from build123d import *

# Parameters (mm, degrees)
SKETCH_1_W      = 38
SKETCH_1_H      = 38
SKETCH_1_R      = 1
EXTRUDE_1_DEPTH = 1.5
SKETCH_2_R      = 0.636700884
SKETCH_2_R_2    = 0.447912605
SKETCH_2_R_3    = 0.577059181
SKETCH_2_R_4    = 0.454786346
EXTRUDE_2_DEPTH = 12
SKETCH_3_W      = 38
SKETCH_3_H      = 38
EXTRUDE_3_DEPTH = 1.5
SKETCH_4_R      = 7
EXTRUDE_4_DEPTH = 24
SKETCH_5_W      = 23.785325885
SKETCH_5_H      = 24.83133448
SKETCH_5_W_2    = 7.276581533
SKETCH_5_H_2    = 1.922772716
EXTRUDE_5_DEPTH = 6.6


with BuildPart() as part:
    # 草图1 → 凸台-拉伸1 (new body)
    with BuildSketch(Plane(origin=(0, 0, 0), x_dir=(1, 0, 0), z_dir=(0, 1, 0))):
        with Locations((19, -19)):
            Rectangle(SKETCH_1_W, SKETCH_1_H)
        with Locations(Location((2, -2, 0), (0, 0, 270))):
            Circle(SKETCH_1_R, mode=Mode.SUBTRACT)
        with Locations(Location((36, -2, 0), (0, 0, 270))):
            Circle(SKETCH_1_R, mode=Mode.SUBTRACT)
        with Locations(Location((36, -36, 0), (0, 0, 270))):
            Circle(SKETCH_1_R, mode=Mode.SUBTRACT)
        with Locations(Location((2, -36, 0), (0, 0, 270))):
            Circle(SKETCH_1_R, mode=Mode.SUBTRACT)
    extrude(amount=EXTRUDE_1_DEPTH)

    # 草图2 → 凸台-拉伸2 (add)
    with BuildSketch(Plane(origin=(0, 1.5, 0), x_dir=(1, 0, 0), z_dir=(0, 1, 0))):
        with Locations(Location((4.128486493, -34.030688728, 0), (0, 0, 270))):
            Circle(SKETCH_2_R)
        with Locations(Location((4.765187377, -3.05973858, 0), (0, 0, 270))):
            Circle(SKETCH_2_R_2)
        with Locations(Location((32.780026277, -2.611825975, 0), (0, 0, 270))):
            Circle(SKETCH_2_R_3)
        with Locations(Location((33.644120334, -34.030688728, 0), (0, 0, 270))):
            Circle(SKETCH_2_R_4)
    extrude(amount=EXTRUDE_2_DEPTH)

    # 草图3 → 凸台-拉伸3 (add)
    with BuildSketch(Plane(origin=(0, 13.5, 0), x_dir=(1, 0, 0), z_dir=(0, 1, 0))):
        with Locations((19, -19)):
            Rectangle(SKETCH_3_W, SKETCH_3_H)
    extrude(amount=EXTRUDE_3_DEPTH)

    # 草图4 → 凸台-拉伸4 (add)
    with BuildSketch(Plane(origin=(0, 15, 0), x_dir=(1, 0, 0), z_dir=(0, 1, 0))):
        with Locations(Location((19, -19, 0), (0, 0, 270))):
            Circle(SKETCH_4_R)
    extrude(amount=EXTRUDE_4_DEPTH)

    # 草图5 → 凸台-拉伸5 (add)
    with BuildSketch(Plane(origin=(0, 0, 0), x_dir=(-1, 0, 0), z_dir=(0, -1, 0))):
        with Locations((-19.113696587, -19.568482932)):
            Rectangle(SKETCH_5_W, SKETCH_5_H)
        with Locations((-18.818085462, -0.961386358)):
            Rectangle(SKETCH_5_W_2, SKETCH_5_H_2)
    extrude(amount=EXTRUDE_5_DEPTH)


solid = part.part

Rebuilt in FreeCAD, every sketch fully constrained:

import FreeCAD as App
import Part
import Sketcher


def add_polygon(sketch, points):
    """Adds a closed chain of lines whose ends are joined by coincident constraints."""
    first, n = sketch.GeometryCount, len(points)
    for a, b in zip(points, points[1:] + points[:1]):
        sketch.addGeometry(Part.LineSegment(App.Vector(*a, 0), App.Vector(*b, 0)), False)
    for i in range(n):
        sketch.addConstraint(Sketcher.Constraint("Coincident", first + i, 2, first + (i + 1) % n, 1))

doc = App.newDocument("Part")
body = doc.addObject("PartDesign::Body", "Body")

# Sketch on XZ plane
sketch1 = doc.addObject("Sketcher::SketchObject", "Sketch")
body.addObject(sketch1)
sketch1.AttachmentSupport = (doc.XZ_Plane, [""])
sketch1.MapMode = "FlatFace"
add_polygon(sketch1, [(0, 0), (0, 38), (38, 38), (38, 0)])  # lines 0-3
sketch1.addGeometry(Part.Circle(App.Vector(2, 36, 0), App.Vector(0, 0, 1), 1), False)  # 4
sketch1.addGeometry(Part.Circle(App.Vector(36, 36, 0), App.Vector(0, 0, 1), 1), False)  # 5
sketch1.addGeometry(Part.Circle(App.Vector(2, 2, 0), App.Vector(0, 0, 1), 1), False)  # 6
sketch1.addGeometry(Part.Circle(App.Vector(36, 2, 0), App.Vector(0, 0, 1), 1), False)  # 7
sketch1.addConstraint(Sketcher.Constraint("Vertical", 0))
sketch1.addConstraint(Sketcher.Constraint("Horizontal", 1))
sketch1.addConstraint(Sketcher.Constraint("Vertical", 2))
sketch1.addConstraint(Sketcher.Constraint("Horizontal", 3))
sketch1.addConstraint(Sketcher.Constraint("Coincident", 3, 2, -1, 1))
sketch1.addConstraint(Sketcher.Constraint("Equal", 4, 5))
sketch1.addConstraint(Sketcher.Constraint("Equal", 5, 6))
sketch1.addConstraint(Sketcher.Constraint("Equal", 6, 7))
sketch1.addConstraint(Sketcher.Constraint("Horizontal", 4, 3, 5, 3))
sketch1.addConstraint(Sketcher.Constraint("Horizontal", 6, 3, 7, 3))
sketch1.addConstraint(Sketcher.Constraint("Vertical", 4, 3, 6, 3))
sketch1.addConstraint(Sketcher.Constraint("Vertical", 5, 3, 7, 3))
sketch1.addConstraint(Sketcher.Constraint("Equal", 3, 0))
sketch1.addConstraint(Sketcher.Constraint("Diameter", 4, 2.0))
sketch1.addConstraint(Sketcher.Constraint("DistanceX", 1, 1, 1, 2, 38.0))
sketch1.addConstraint(Sketcher.Constraint("DistanceX", -1, 1, 4, 3, 2.0))
sketch1.addConstraint(Sketcher.Constraint("DistanceY", -1, 1, 4, 3, 36.0))
sketch1.addConstraint(Sketcher.Constraint("DistanceX", -1, 1, 5, 3, 36.0))
sketch1.addConstraint(Sketcher.Constraint("DistanceY", -1, 1, 6, 3, 2.0))
pad1 = doc.addObject("PartDesign::Pad", "Pad")
body.addObject(pad1)
pad1.Profile = sketch1
pad1.Length = 1.5
pad1.Reversed = True

# Sketch on XZ plane
sketch2 = doc.addObject("Sketcher::SketchObject", "Sketch001")
body.addObject(sketch2)
sketch2.AttachmentSupport = (doc.XZ_Plane, [""])
sketch2.MapMode = "FlatFace"
sketch2.AttachmentOffset = App.Placement(App.Vector(0, 0, -1.5), App.Rotation())
sketch2.addGeometry(Part.Circle(App.Vector(4.13, 34.03, 0), App.Vector(0, 0, 1), 0.64), False)
sketch2.addGeometry(Part.Circle(App.Vector(4.77, 3.06, 0), App.Vector(0, 0, 1), 0.45), False)
sketch2.addGeometry(Part.Circle(App.Vector(32.78, 2.61, 0), App.Vector(0, 0, 1), 0.58), False)
sketch2.addGeometry(Part.Circle(App.Vector(33.64, 34.03, 0), App.Vector(0, 0, 1), 0.45), False)
sketch2.addConstraint(Sketcher.Constraint("Horizontal", 0, 3, 3, 3))
sketch2.addConstraint(Sketcher.Constraint("Diameter", 0, 1.273402))
sketch2.addConstraint(Sketcher.Constraint("Diameter", 2, 1.154118))
sketch2.addConstraint(Sketcher.Constraint("Diameter", 1, 0.895825))
sketch2.addConstraint(Sketcher.Constraint("Diameter", 3, 0.909573))
sketch2.addConstraint(Sketcher.Constraint("DistanceX", 0, 3, 1, 3, 0.636701))
sketch2.addConstraint(Sketcher.Constraint("DistanceY", -1, 1, 0, 3, 34.030689))
sketch2.addConstraint(Sketcher.Constraint("DistanceY", -1, 1, 1, 3, 3.059739))
sketch2.addConstraint(Sketcher.Constraint("DistanceX", -1, 1, 3, 3, 33.64412))
sketch2.addConstraint(Sketcher.Constraint("DistanceX", 1, 3, 2, 3, 28.014839))
sketch2.addConstraint(Sketcher.Constraint("DistanceX", -1, 1, 0, 3, 4.128486))
sketch2.addConstraint(Sketcher.Constraint("DistanceY", -1, 1, 2, 3, 2.611826))
pad2 = doc.addObject("PartDesign::Pad", "Pad001")
body.addObject(pad2)
pad2.Profile = sketch2
pad2.Length = 12
pad2.Reversed = True

# Sketch on XZ plane
sketch3 = doc.addObject("Sketcher::SketchObject", "Sketch002")
body.addObject(sketch3)
sketch3.AttachmentSupport = (doc.XZ_Plane, [""])
sketch3.MapMode = "FlatFace"
sketch3.AttachmentOffset = App.Placement(App.Vector(0, 0, -13.5), App.Rotation())
add_polygon(sketch3, [(0, 0), (0, 38), (38, 38), (38, 0)])  # lines 0-3
sketch3.addConstraint(Sketcher.Constraint("Vertical", 0))
sketch3.addConstraint(Sketcher.Constraint("Horizontal", 1))
sketch3.addConstraint(Sketcher.Constraint("Vertical", 2))
sketch3.addConstraint(Sketcher.Constraint("Horizontal", 3))
sketch3.addConstraint(Sketcher.Constraint("Coincident", 3, 2, -1, 1))
sketch3.addConstraint(Sketcher.Constraint("Equal", 3, 0))
sketch3.addConstraint(Sketcher.Constraint("DistanceX", 1, 1, 1, 2, 38.0))
pad3 = doc.addObject("PartDesign::Pad", "Pad002")
body.addObject(pad3)
pad3.Profile = sketch3
pad3.Length = 1.5
pad3.Reversed = True

# Sketch on XZ plane
sketch4 = doc.addObject("Sketcher::SketchObject", "Sketch003")
body.addObject(sketch4)
sketch4.AttachmentSupport = (doc.XZ_Plane, [""])
sketch4.MapMode = "FlatFace"
sketch4.AttachmentOffset = App.Placement(App.Vector(0, 0, -15), App.Rotation())
sketch4.addGeometry(Part.Circle(App.Vector(19, 19, 0), App.Vector(0, 0, 1), 7), False)
sketch4.addConstraint(Sketcher.Constraint("Diameter", 0, 14.0))
sketch4.addConstraint(Sketcher.Constraint("DistanceX", -1, 1, 0, 3, 19.0))
sketch4.addConstraint(Sketcher.Constraint("DistanceY", -1, 1, 0, 3, 19.0))
pad4 = doc.addObject("PartDesign::Pad", "Pad003")
body.addObject(pad4)
pad4.Profile = sketch4
pad4.Length = 24
pad4.Reversed = True

# Sketch on XZ plane
sketch5 = doc.addObject("Sketcher::SketchObject", "Sketch004")
body.addObject(sketch5)
sketch5.AttachmentSupport = (doc.XZ_Plane, [""])
sketch5.MapMode = "FlatFace"
add_polygon(sketch5, [(31, 7.2), (31, 32), (7.2, 32), (7.2, 7.2)])  # lines 0-3
add_polygon(sketch5, [(22.5, 0), (22.5, 1.9), (15.2, 1.9), (15.2, 0)])  # lines 4-7
sketch5.addConstraint(Sketcher.Constraint("Vertical", 0))
sketch5.addConstraint(Sketcher.Constraint("Horizontal", 1))
sketch5.addConstraint(Sketcher.Constraint("Vertical", 2))
sketch5.addConstraint(Sketcher.Constraint("Horizontal", 3))
sketch5.addConstraint(Sketcher.Constraint("Vertical", 4))
sketch5.addConstraint(Sketcher.Constraint("Horizontal", 5))
sketch5.addConstraint(Sketcher.Constraint("Vertical", 6))
sketch5.addConstraint(Sketcher.Constraint("Horizontal", 7))
sketch5.addConstraint(Sketcher.Constraint("PointOnObject", 6, 2, -1))
sketch5.addConstraint(Sketcher.Constraint("DistanceX", 5, 2, 5, 1, 7.276582))
sketch5.addConstraint(Sketcher.Constraint("DistanceX", 1, 2, 1, 1, 23.785326))
sketch5.addConstraint(Sketcher.Constraint("DistanceY", 0, 1, 0, 2, 24.831334))
sketch5.addConstraint(Sketcher.Constraint("DistanceY", 4, 1, 4, 2, 1.922773))
sketch5.addConstraint(Sketcher.Constraint("DistanceX", -1, 1, 0, 2, 31.00636))
sketch5.addConstraint(Sketcher.Constraint("DistanceY", -1, 1, 0, 2, 31.98415))
sketch5.addConstraint(Sketcher.Constraint("DistanceX", 2, 2, 5, 2, 7.958761))
pad5 = doc.addObject("PartDesign::Pad", "Pad004")
body.addObject(pad5)
pad5.Profile = sketch5
pad5.Length = 6.6

doc.recompute()
